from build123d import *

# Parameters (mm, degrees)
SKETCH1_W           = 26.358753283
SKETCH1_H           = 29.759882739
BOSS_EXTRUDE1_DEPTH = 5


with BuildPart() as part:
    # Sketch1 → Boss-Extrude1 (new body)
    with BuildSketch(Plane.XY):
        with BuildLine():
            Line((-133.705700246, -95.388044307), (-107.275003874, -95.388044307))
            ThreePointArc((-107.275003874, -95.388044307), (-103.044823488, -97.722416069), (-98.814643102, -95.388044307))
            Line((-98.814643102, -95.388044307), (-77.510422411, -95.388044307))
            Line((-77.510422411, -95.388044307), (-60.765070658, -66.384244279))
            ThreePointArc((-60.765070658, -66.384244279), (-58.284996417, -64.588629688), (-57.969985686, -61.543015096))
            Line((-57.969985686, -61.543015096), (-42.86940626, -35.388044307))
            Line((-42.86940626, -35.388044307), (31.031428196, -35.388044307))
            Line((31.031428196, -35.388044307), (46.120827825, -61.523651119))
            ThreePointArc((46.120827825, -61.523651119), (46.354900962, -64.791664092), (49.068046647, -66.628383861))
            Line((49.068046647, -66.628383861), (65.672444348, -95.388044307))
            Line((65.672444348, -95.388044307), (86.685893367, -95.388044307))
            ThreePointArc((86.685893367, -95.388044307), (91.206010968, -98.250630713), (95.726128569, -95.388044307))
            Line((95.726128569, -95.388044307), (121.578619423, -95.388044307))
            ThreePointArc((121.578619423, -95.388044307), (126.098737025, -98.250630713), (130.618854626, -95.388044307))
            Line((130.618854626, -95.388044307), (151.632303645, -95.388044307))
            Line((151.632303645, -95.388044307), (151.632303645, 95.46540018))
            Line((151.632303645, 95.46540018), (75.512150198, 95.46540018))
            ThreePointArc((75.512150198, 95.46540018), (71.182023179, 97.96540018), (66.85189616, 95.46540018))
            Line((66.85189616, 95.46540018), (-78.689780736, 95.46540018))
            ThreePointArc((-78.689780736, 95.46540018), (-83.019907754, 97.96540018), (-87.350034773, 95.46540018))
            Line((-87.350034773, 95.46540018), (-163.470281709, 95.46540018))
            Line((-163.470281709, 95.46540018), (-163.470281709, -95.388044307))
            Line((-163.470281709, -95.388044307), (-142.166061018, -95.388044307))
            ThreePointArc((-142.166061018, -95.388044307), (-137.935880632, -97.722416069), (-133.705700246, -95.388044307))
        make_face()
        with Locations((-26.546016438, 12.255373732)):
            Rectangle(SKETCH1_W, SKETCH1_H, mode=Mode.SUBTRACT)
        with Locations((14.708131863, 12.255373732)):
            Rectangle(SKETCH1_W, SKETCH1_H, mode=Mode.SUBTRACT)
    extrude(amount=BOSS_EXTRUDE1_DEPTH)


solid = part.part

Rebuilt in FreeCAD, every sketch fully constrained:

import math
import FreeCAD as App
import Part
import Sketcher

V = App.Vector
Q = App.Units.Quantity


def add_polygon(sketch, points):
    """Adds a closed chain of lines whose ends are joined by coincident constraints."""
    first, n = sketch.GeometryCount, len(points)
    for a, b in zip(points, points[1:] + points[:1]):
        sketch.addGeometry(Part.LineSegment(App.Vector(*a, 0), App.Vector(*b, 0)), False)
    for i in range(n):
        sketch.addConstraint(Sketcher.Constraint("Coincident", first + i, 2, first + (i + 1) % n, 1))

doc = App.newDocument("Part")
body = doc.addObject("PartDesign::Body", "Body")

sketch1 = doc.addObject("Sketcher::SketchObject", "Sketch")
body.addObject(sketch1)
sketch1.AttachmentSupport = (doc.XY_Plane, [""])
sketch1.MapMode = "FlatFace"
sketch1.addGeometry(Part.LineSegment(V(-133.7, -95.4, 0), V(-107.3, -95.4, 0)), False)
sketch1.addGeometry(Part.ArcOfCircle(Part.Circle(V(-103, -92.7, 0), V(0, 0, 1), 5), math.radians(-148), math.radians(-32)), False)
sketch1.addGeometry(Part.LineSegment(V(-98.8, -95.4, 0), V(-77.5, -95.4, 0)), False)
sketch1.addGeometry(Part.LineSegment(V(-77.5, -95.4, 0), V(-60.8, -66.4, 0)), False)
sketch1.addGeometry(Part.ArcOfCircle(Part.Circle(V(-61.5, -62.7, 0), V(0, 0, 1), 3.7), math.radians(-78), math.radians(18)), False)
sketch1.addGeometry(Part.LineSegment(V(-58, -61.5, 0), V(-42.9, -35.4, 0)), False)
sketch1.addGeometry(Part.LineSegment(V(-42.9, -35.4, 0), V(31, -35.4, 0)), False)
sketch1.addGeometry(Part.LineSegment(V(31, -35.4, 0), V(46.1, -61.5, 0)), False)
sketch1.addGeometry(Part.ArcOfCircle(Part.Circle(V(49.6, -62.9, 0), V(0, 0, 1), 3.7), math.radians(158), math.radians(262)), False)
sketch1.addGeometry(Part.LineSegment(V(49.1, -66.6, 0), V(65.7, -95.4, 0)), False)
sketch1.addGeometry(Part.LineSegment(V(65.7, -95.4, 0), V(86.7, -95.4, 0)), False)
sketch1.addGeometry(Part.ArcOfCircle(Part.Circle(V(91.2, -93.3, 0), V(0, 0, 1), 5), math.radians(-155), math.radians(-25)), False)
sketch1.addGeometry(Part.LineSegment(V(95.7, -95.4, 0), V(121.6, -95.4, 0)), False)
sketch1.addGeometry(Part.ArcOfCircle(Part.Circle(V(126.1, -93.3, 0), V(0, 0, 1), 5), math.radians(-155), math.radians(-25)), False)
sketch1.addGeometry(Part.LineSegment(V(130.6, -95.4, 0), V(151.6, -95.4, 0)), False)
sketch1.addGeometry(Part.LineSegment(V(151.6, -95.4, 0), V(151.6, 95.5, 0)), False)
sketch1.addGeometry(Part.LineSegment(V(151.6, 95.5, 0), V(75.5, 95.5, 0)), False)
sketch1.addGeometry(Part.ArcOfCircle(Part.Circle(V(71.2, 93, 0), V(0, 0, 1), 5), math.radians(30), math.radians(150)), False)
sketch1.addGeometry(Part.LineSegment(V(66.9, 95.5, 0), V(-78.7, 95.5, 0)), False)
sketch1.addGeometry(Part.ArcOfCircle(Part.Circle(V(-83, 93, 0), V(0, 0, 1), 5), math.radians(30), math.radians(150)), False)
sketch1.addGeometry(Part.LineSegment(V(-87.4, 95.5, 0), V(-163.5, 95.5, 0)), False)
sketch1.addGeometry(Part.LineSegment(V(-163.5, 95.5, 0), V(-163.5, -95.4, 0)), False)
sketch1.addGeometry(Part.LineSegment(V(-163.5, -95.4, 0), V(-142.2, -95.4, 0)), False)
sketch1.addGeometry(Part.ArcOfCircle(Part.Circle(V(-137.9, -92.7, 0), V(0, 0, 1), 5), math.radians(-148), math.radians(-32)), False)
add_polygon(sketch1, [(-13.4, -2.6), (-39.7, -2.6), (-39.7, 27.1), (-13.4, 27.1)])
add_polygon(sketch1, [(27.9, -2.6), (1.5, -2.6), (1.5, 27.1), (27.9, 27.1)])
sketch1.addConstraint([
    Sketcher.Constraint("Coincident", 0, 2, 1, 1),
    Sketcher.Constraint("Coincident", 1, 2, 2, 1),
    Sketcher.Constraint("Coincident", 2, 2, 3, 1),
    Sketcher.Constraint("Coincident", 3, 2, 4, 1),
    Sketcher.Constraint("Coincident", 4, 2, 5, 1),
    Sketcher.Constraint("Coincident", 5, 2, 6, 1),
    Sketcher.Constraint("Coincident", 6, 2, 7, 1),
    Sketcher.Constraint("Coincident", 7, 2, 8, 1),
    Sketcher.Constraint("Coincident", 8, 2, 9, 1),
    Sketcher.Constraint("Coincident", 9, 2, 10, 1),
    Sketcher.Constraint("Coincident", 10, 2, 11, 1),
    Sketcher.Constraint("Coincident", 11, 2, 12, 1),
    Sketcher.Constraint("Coincident", 12, 2, 13, 1),
    Sketcher.Constraint("Coincident", 13, 2, 14, 1),
    Sketcher.Constraint("Coincident", 14, 2, 15, 1),
    Sketcher.Constraint("Coincident", 15, 2, 16, 1),
    Sketcher.Constraint("Coincident", 16, 2, 17, 1),
    Sketcher.Constraint("Coincident", 17, 2, 18, 1),
    Sketcher.Constraint("Coincident", 18, 2, 19, 1),
    Sketcher.Constraint("Coincident", 19, 2, 20, 1),
    Sketcher.Constraint("Coincident", 20, 2, 21, 1),
    Sketcher.Constraint("Coincident", 21, 2, 22, 1),
    Sketcher.Constraint("Coincident", 22, 2, 23, 1),
    Sketcher.Constraint("Coincident", 23, 2, 0, 1),
    Sketcher.Constraint("Horizontal", 0),
    Sketcher.Constraint("Horizontal", 2),
    Sketcher.Constraint("Horizontal", 6),
    Sketcher.Constraint("Horizontal", 10),
    Sketcher.Constraint("Horizontal", 12),
    Sketcher.Constraint("Horizontal", 14),
    Sketcher.Constraint("Vertical", 15),
    Sketcher.Constraint("Horizontal", 16),
    Sketcher.Constraint("Horizontal", 18),
    Sketcher.Constraint("Horizontal", 20),
    Sketcher.Constraint("Vertical", 21),
    Sketcher.Constraint("Horizontal", 22),
    Sketcher.Constraint("Horizontal", 24),
    Sketcher.Constraint("Vertical", 25),
    Sketcher.Constraint("Horizontal", 26),
    Sketcher.Constraint("Vertical", 27),
    Sketcher.Constraint("Horizontal", 28),
    Sketcher.Constraint("Vertical", 29),
    Sketcher.Constraint("Horizontal", 30),
    Sketcher.Constraint("Vertical", 31),
    Sketcher.Constraint("Equal", 4, 8),
    Sketcher.Constraint("Equal", 1, 11),
    Sketcher.Constraint("Equal", 11, 13),
    Sketcher.Constraint("Equal", 13, 17),
    Sketcher.Constraint("Equal", 17, 19),
    Sketcher.Constraint("Equal", 19, 23),
    Sketcher.Constraint("Parallel", 3, 5),
    Sketcher.Constraint("Parallel", 7, 9),
    Sketcher.Constraint("Horizontal", 11, 3, 13, 3),
    Sketcher.Constraint("Horizontal", 17, 3, 19, 3),
    Sketcher.Constraint("Horizontal", 1, 3, 23, 3),
    Sketcher.Constraint("Horizontal", 0, 2, 1, 2),
    Sketcher.Constraint("Horizontal", 2, 2, 9, 2),
    Sketcher.Constraint("Horizontal", 10, 2, 11, 2),
    Sketcher.Constraint("Horizontal", 12, 2, 13, 2),
    Sketcher.Constraint("Horizontal", 16, 2, 17, 2),
    Sketcher.Constraint("Horizontal", 18, 2, 19, 2),
    Sketcher.Constraint("Horizontal", 14, 2, 21, 2),
    Sketcher.Constraint("Horizontal", 27, 2, 28, 2),
    Sketcher.Constraint("Horizontal", 26, 2, 29, 2),
    Sketcher.Constraint("Equal", 10, 14),
    Sketcher.Constraint("Equal", 2, 22),
    Sketcher.Constraint("Equal", 26, 28),
    Sketcher.Constraint("Radius", 1, Q("5 mm")),
    Sketcher.Constraint("Angle", 3, Q("60 deg")),
    Sketcher.Constraint("Angle", 7, Q("-60 deg")),
    Sketcher.Constraint("Radius", 4, Q("3.75 mm")),
    Sketcher.Constraint("DistanceY", 2, 2, 5, 2, Q("60 mm")),
    Sketcher.Constraint("DistanceY", 17, 3, 15, 2, Q("2.5 mm")),
    Sketcher.Constraint("DistanceY", 11, 3, 4, 3, Q("30.537001 mm")),
    Sketcher.Constraint("Distance", 7, Q("30.178799 mm")),
    Sketcher.Constraint("DistanceX", 2, 1, 2, 2, Q("21.304221 mm")),
    Sketcher.Constraint("DistanceX", 10, 1, 10, 2, Q("21.013449 mm")),
    Sketcher.Constraint("DistanceX", 12, 1, 12, 2, Q("25.852491 mm")),
    Sketcher.Constraint("DistanceY", -1, 1, 17, 3, Q("92.9654 mm")),
    Sketcher.Constraint("DistanceX", 23, 2, -1, 1, Q("133.7057 mm")),
    Sketcher.Constraint("DistanceX", 0, 2, 8, 3, Q("156.8775 mm")),
    Sketcher.Constraint("DistanceX", 1, 3, 2, 2, Q("25.534401 mm")),
    Sketcher.Constraint("DistanceY", 2, 2, 3, 2, Q("29.0038 mm")),
    Sketcher.Constraint("DistanceY", 1, 3, 4, 2, Q("31.179401 mm")),
    Sketcher.Constraint("DistanceX", 20, 2, 18, 2, Q("84.780501 mm")),
    Sketcher.Constraint("DistanceX", 4, 3, 24, 2, Q("21.807199 mm")),
    Sketcher.Constraint("DistanceX", 0, 1, 0, 2, Q("26.430696 mm")),
    Sketcher.Constraint("DistanceX", 6, 1, 6, 2, Q("73.900834 mm")),
    Sketcher.Constraint("DistanceX", 16, 2, 16, 1, Q("76.120153 mm")),
    Sketcher.Constraint("DistanceX", 18, 2, 18, 1, Q("145.541677 mm")),
    Sketcher.Constraint("DistanceX", 24, 2, 24, 1, Q("26.358753 mm")),
    Sketcher.Constraint("DistanceY", 15, 1, 15, 2, Q("190.853444 mm")),
    Sketcher.Constraint("DistanceY", 25, 1, 25, 2, Q("29.759883 mm")),
    Sketcher.Constraint("DistanceX", 4, 3, -1, 1, Q("61.532592 mm")),
    Sketcher.Constraint("DistanceX", -1, 1, 30, 2, Q("27.887509 mm")),
    Sketcher.Constraint("DistanceY", 5, 2, 25, 2, Q("62.523359 mm")),
])
pad1 = doc.addObject("PartDesign::Pad", "Pad")
body.addObject(pad1)
pad1.Profile = sketch1
pad1.Length = 5

doc.recompute()
